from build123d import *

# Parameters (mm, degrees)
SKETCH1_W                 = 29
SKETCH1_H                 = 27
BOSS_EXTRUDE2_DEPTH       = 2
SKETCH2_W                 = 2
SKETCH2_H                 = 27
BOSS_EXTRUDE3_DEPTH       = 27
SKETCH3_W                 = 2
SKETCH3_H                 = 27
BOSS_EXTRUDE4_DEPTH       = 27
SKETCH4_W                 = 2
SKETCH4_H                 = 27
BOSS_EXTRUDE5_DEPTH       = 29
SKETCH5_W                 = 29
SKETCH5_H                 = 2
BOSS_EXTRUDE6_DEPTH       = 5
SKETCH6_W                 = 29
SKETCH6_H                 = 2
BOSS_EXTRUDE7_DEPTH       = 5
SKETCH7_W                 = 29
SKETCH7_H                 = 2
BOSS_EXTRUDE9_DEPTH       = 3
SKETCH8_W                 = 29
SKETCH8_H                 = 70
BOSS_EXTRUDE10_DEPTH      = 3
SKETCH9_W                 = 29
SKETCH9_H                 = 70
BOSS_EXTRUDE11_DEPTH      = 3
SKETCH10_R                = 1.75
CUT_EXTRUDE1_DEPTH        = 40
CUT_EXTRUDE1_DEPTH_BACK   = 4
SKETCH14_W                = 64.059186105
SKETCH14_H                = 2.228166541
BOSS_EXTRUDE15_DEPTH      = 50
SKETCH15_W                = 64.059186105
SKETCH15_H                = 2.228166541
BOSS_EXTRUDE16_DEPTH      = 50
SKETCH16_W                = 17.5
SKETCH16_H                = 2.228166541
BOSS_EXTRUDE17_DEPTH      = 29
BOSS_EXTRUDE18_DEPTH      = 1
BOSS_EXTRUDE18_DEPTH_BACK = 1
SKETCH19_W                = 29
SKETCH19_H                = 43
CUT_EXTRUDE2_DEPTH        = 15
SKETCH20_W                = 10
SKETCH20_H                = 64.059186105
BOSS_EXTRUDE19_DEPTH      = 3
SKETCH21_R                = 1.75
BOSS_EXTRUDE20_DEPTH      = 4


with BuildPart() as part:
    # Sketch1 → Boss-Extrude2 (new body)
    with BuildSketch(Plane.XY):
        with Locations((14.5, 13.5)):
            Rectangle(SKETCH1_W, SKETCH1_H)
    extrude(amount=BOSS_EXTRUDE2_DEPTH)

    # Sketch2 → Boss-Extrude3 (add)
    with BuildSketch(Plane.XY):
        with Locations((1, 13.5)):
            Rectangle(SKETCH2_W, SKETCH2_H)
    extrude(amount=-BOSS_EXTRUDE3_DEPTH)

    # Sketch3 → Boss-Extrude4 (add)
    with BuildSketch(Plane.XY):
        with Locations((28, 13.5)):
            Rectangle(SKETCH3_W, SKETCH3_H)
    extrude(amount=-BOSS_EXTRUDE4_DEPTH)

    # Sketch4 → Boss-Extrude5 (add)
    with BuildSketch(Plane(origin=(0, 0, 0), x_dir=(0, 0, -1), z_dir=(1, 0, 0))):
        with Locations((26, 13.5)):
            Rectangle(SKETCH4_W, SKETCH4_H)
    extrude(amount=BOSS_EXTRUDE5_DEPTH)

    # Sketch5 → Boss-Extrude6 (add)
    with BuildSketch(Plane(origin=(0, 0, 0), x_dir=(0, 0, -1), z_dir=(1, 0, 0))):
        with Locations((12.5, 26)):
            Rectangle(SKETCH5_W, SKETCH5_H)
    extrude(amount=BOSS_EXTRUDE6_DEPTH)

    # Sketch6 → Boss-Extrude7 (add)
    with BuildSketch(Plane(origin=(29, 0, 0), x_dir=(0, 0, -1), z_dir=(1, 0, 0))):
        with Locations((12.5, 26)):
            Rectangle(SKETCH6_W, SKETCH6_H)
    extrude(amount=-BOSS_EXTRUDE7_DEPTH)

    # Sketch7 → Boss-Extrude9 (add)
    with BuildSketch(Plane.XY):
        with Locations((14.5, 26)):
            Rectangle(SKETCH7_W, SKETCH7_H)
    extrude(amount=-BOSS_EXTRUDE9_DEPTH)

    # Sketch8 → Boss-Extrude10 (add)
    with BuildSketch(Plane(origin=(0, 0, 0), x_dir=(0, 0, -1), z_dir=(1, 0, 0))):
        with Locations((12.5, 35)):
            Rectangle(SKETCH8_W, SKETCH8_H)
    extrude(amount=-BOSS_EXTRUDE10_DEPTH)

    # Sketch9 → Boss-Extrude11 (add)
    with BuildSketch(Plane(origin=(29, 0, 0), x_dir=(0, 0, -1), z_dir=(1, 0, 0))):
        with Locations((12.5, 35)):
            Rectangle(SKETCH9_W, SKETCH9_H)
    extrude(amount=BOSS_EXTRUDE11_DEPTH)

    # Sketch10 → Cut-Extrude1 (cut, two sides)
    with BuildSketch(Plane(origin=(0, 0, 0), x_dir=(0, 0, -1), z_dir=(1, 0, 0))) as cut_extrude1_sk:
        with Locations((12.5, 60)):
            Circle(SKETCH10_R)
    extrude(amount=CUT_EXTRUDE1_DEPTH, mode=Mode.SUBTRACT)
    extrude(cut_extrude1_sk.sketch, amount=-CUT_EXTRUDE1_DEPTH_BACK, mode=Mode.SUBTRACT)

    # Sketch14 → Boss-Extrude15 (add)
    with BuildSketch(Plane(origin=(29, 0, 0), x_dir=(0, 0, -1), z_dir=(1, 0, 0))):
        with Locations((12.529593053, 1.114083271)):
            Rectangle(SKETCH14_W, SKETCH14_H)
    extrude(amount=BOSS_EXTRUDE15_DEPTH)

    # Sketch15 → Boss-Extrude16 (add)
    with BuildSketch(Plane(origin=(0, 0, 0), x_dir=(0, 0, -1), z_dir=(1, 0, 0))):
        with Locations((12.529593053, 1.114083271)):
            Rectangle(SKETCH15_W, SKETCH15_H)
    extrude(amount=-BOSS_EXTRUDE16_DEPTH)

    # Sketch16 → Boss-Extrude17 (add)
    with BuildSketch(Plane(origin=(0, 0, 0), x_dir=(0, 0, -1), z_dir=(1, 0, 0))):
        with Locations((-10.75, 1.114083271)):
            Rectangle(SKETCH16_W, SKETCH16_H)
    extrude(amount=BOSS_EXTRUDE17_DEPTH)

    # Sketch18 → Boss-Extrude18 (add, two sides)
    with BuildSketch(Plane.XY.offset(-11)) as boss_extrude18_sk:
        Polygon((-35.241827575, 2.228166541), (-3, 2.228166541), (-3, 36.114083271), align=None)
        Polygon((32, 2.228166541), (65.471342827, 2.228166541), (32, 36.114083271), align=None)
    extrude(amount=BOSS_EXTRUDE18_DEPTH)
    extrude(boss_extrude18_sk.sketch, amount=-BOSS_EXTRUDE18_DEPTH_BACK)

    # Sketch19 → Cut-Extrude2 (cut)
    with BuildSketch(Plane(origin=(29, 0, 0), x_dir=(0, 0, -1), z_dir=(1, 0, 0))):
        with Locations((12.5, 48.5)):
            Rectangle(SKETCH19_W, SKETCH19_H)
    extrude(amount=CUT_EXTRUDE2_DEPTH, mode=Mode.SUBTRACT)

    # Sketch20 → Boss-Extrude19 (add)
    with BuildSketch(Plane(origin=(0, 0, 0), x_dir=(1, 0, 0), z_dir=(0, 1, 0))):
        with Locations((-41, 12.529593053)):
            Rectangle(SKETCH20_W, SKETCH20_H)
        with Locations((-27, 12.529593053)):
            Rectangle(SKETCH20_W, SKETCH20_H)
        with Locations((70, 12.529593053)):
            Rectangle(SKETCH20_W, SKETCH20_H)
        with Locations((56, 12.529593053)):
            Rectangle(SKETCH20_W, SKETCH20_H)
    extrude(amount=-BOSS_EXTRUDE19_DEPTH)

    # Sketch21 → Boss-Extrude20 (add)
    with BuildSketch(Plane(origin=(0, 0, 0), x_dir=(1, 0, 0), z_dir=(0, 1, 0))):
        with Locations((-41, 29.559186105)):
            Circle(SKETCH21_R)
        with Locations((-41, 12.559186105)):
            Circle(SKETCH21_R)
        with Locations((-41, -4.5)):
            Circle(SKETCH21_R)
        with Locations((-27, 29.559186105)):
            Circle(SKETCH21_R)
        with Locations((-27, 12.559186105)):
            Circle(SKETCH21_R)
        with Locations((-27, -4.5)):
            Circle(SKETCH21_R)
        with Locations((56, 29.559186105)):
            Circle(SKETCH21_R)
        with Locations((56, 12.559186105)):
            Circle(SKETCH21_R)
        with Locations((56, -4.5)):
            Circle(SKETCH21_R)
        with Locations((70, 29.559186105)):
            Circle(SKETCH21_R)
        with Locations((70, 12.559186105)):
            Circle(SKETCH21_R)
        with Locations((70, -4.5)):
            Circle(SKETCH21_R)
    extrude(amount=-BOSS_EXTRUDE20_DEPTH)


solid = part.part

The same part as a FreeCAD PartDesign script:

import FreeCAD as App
import Part
import Sketcher
Q = App.Units.Quantity


def add_polygon(sketch, points):
    """Adds a closed chain of lines whose ends are joined by coincident constraints."""
    first, n = sketch.GeometryCount, len(points)
    for a, b in zip(points, points[1:] + points[:1]):
        sketch.addGeometry(Part.LineSegment(App.Vector(*a, 0), App.Vector(*b, 0)), False)
    for i in range(n):
        sketch.addConstraint(Sketcher.Constraint("Coincident", first + i, 2, first + (i + 1) % n, 1))

doc = App.newDocument("Part")
body = doc.addObject("PartDesign::Body", "Body")

sketch1 = body.newObject("Sketcher::SketchObject", "Sketch")
sketch1.AttachmentSupport = (doc.getObject("XY_Plane"), [""])
sketch1.MapMode = "FlatFace"
add_polygon(sketch1, [(0, 27), (0, 0), (29, 0), (29, 27)])
sketch1.addConstraint([
    Sketcher.Constraint("Vertical", 0),
    Sketcher.Constraint("Horizontal", 1),
    Sketcher.Constraint("Vertical", 2),
    Sketcher.Constraint("Horizontal", 3),
    Sketcher.Constraint("Coincident", 0, 2, -1, 1),
    Sketcher.Constraint("DistanceX", 1, 1, 1, 2, Q("29 mm")),
    Sketcher.Constraint("DistanceY", 0, 2, 0, 1, Q("27 mm")),
])
pad1 = body.newObject("PartDesign::Pad", "Pad")
pad1.Profile = sketch1
pad1.Length = 2

sketch2 = body.newObject("Sketcher::SketchObject", "Sketch001")
sketch2.AttachmentSupport = (doc.getObject("XY_Plane"), [""])
sketch2.MapMode = "FlatFace"
add_polygon(sketch2, [(0, 27), (0, 0), (2, 0), (2, 27)])
sketch2.addConstraint([
    Sketcher.Constraint("Vertical", 0),
    Sketcher.Constraint("Horizontal", 1),
    Sketcher.Constraint("Vertical", 2),
    Sketcher.Constraint("Horizontal", 3),
    Sketcher.Constraint("Coincident", 0, 2, -1, 1),
    Sketcher.Constraint("DistanceX", 1, 1, 1, 2, Q("2 mm")),
    Sketcher.Constraint("DistanceY", 0, 2, 0, 1, Q("27 mm")),
])
pad2 = body.newObject("PartDesign::Pad", "Pad001")
pad2.Profile = sketch2
pad2.Length = 27
pad2.Reversed = True

sketch3 = body.newObject("Sketcher::SketchObject", "Sketch002")
sketch3.AttachmentSupport = (doc.getObject("XY_Plane"), [""])
sketch3.MapMode = "FlatFace"
add_polygon(sketch3, [(27, 27), (27, 0), (29, 0), (29, 27)])
sketch3.addConstraint([
    Sketcher.Constraint("Vertical", 0),
    Sketcher.Constraint("Horizontal", 1),
    Sketcher.Constraint("Vertical", 2),
    Sketcher.Constraint("Horizontal", 3),
    Sketcher.Constraint("PointOnObject", 0, 2, -1),
    Sketcher.Constraint("DistanceX", 1, 1, 1, 2, Q("2 mm")),
    Sketcher.Constraint("DistanceY", 0, 2, 0, 1, Q("27 mm")),
    Sketcher.Constraint("DistanceX", -1, 1, 0, 2, Q("27 mm")),
])
pad3 = body.newObject("PartDesign::Pad", "Pad002")
pad3.Profile = sketch3
pad3.Length = 27
pad3.Reversed = True

sketch4 = body.newObject("Sketcher::SketchObject", "Sketch003")
sketch4.AttachmentSupport = (doc.getObject("YZ_Plane"), [""])
sketch4.MapMode = "FlatFace"
add_polygon(sketch4, [(27, -25), (0, -25), (0, -27), (27, -27)])
sketch4.addConstraint([
    Sketcher.Constraint("Horizontal", 0),
    Sketcher.Constraint("Vertical", 1),
    Sketcher.Constraint("Horizontal", 2),
    Sketcher.Constraint("Vertical", 3),
    Sketcher.Constraint("PointOnObject", 0, 2, -2),
    Sketcher.Constraint("DistanceX", 0, 2, 0, 1, Q("27 mm")),
    Sketcher.Constraint("DistanceY", 1, 2, 1, 1, Q("2 mm")),
    Sketcher.Constraint("DistanceY", 0, 2, -1, 1, Q("25 mm")),
])
pad4 = body.newObject("PartDesign::Pad", "Pad003")
pad4.Profile = sketch4
pad4.Length = 29

sketch5 = body.newObject("Sketcher::SketchObject", "Sketch004")
sketch5.AttachmentSupport = (doc.getObject("YZ_Plane"), [""])
sketch5.MapMode = "FlatFace"
add_polygon(sketch5, [(27, 2), (25, 2), (25, -27), (27, -27)])
sketch5.addConstraint([
    Sketcher.Constraint("Horizontal", 0),
    Sketcher.Constraint("Vertical", 1),
    Sketcher.Constraint("Horizontal", 2),
    Sketcher.Constraint("Vertical", 3),
    Sketcher.Constraint("DistanceX", 0, 2, 0, 1, Q("2 mm")),
    Sketcher.Constraint("DistanceY", 1, 2, 1, 1, Q("29 mm")),
    Sketcher.Constraint("DistanceX", -1, 1, 0, 2, Q("25 mm")),
    Sketcher.Constraint("DistanceY", -1, 1, 0, 2, Q("2 mm")),
])
pad5 = body.newObject("PartDesign::Pad", "Pad004")
pad5.Profile = sketch5
pad5.Length = 5

sketch6 = body.newObject("Sketcher::SketchObject", "Sketch005")
sketch6.AttachmentSupport = (doc.getObject("YZ_Plane"), [""])
sketch6.MapMode = "FlatFace"
sketch6.AttachmentOffset = App.Placement(App.Vector(0, 0, 29), App.Rotation())
add_polygon(sketch6, [(27, 2), (25, 2), (25, -27), (27, -27)])
sketch6.addConstraint([
    Sketcher.Constraint("Horizontal", 0),
    Sketcher.Constraint("Vertical", 1),
    Sketcher.Constraint("Horizontal", 2),
    Sketcher.Constraint("Vertical", 3),
    Sketcher.Constraint("DistanceX", 0, 2, 0, 1, Q("2 mm")),
    Sketcher.Constraint("DistanceY", 1, 2, 1, 1, Q("29 mm")),
    Sketcher.Constraint("DistanceX", -1, 1, 0, 2, Q("25 mm")),
    Sketcher.Constraint("DistanceY", -1, 1, 0, 2, Q("2 mm")),
])
pad6 = body.newObject("PartDesign::Pad", "Pad005")
pad6.Profile = sketch6
pad6.Length = 5
pad6.Reversed = True

sketch7 = body.newObject("Sketcher::SketchObject", "Sketch006")
sketch7.AttachmentSupport = (doc.getObject("XY_Plane"), [""])
sketch7.MapMode = "FlatFace"
add_polygon(sketch7, [(0, 27), (0, 25), (29, 25), (29, 27)])
sketch7.addConstraint([
    Sketcher.Constraint("Vertical", 0),
    Sketcher.Constraint("Horizontal", 1),
    Sketcher.Constraint("Vertical", 2),
    Sketcher.Constraint("Horizontal", 3),
    Sketcher.Constraint("PointOnObject", 0, 2, -2),
    Sketcher.Constraint("DistanceX", 1, 1, 1, 2, Q("29 mm")),
    Sketcher.Constraint("DistanceY", 0, 2, 0, 1, Q("2 mm")),
    Sketcher.Constraint("DistanceY", -1, 1, 0, 2, Q("25 mm")),
])
pad7 = body.newObject("PartDesign::Pad", "Pad006")
pad7.Profile = sketch7
pad7.Length = 3
pad7.Reversed = True

sketch8 = body.newObject("Sketcher::SketchObject", "Sketch007")
sketch8.AttachmentSupport = (doc.getObject("YZ_Plane"), [""])
sketch8.MapMode = "FlatFace"
add_polygon(sketch8, [(70, 2), (0, 2), (0, -27), (70, -27)])
sketch8.addConstraint([
    Sketcher.Constraint("Horizontal", 0),
    Sketcher.Constraint("Vertical", 1),
    Sketcher.Constraint("Horizontal", 2),
    Sketcher.Constraint("Vertical", 3),
    Sketcher.Constraint("PointOnObject", 0, 2, -2),
    Sketcher.Constraint("DistanceX", 0, 2, 0, 1, Q("70 mm")),
    Sketcher.Constraint("DistanceY", 1, 2, 1, 1, Q("29 mm")),
    Sketcher.Constraint("DistanceY", -1, 1, 0, 2, Q("2 mm")),
])
pad8 = body.newObject("PartDesign::Pad", "Pad007")
pad8.Profile = sketch8
pad8.Length = 3
pad8.Reversed = True

sketch9 = body.newObject("Sketcher::SketchObject", "Sketch008")
sketch9.AttachmentSupport = (doc.getObject("YZ_Plane"), [""])
sketch9.MapMode = "FlatFace"
sketch9.AttachmentOffset = App.Placement(App.Vector(0, 0, 29), App.Rotation())
add_polygon(sketch9, [(70, 2), (0, 2), (0, -27), (70, -27)])
sketch9.addConstraint([
    Sketcher.Constraint("Horizontal", 0),
    Sketcher.Constraint("Vertical", 1),
    Sketcher.Constraint("Horizontal", 2),
    Sketcher.Constraint("Vertical", 3),
    Sketcher.Constraint("PointOnObject", 0, 2, -2),
    Sketcher.Constraint("DistanceX", 0, 2, 0, 1, Q("70 mm")),
    Sketcher.Constraint("DistanceY", 1, 2, 1, 1, Q("29 mm")),
    Sketcher.Constraint("DistanceY", -1, 1, 0, 2, Q("2 mm")),
])
pad9 = body.newObject("PartDesign::Pad", "Pad008")
pad9.Profile = sketch9
pad9.Length = 3

sketch10 = body.newObject("Sketcher::SketchObject", "Sketch009")
sketch10.AttachmentSupport = (doc.getObject("YZ_Plane"), [""])
sketch10.MapMode = "FlatFace"
sketch10.addGeometry(Part.Circle(App.Vector(60, -12.5, 0), App.Vector(0, 0, 1), 1.8), False)
sketch10.addConstraint([
    Sketcher.Constraint("Diameter", 0, Q("3.5 mm")),
    Sketcher.Constraint("DistanceX", -1, 1, 0, 3, Q("60 mm")),
    Sketcher.Constraint("DistanceY", 0, 3, -1, 1, Q("12.5 mm")),
])
pocket1 = body.newObject("PartDesign::Pocket", "Pocket")
pocket1.Profile = sketch10
pocket1.Type = "ThroughAll"
pocket1.Midplane = True

sketch11 = body.newObject("Sketcher::SketchObject", "Sketch010")
sketch11.AttachmentSupport = (doc.getObject("YZ_Plane"), [""])
sketch11.MapMode = "FlatFace"
sketch11.AttachmentOffset = App.Placement(App.Vector(0, 0, 29), App.Rotation())
add_polygon(sketch11, [(2.2, 19.5), (0, 19.5), (0, -44.6), (2.2, -44.6)])
sketch11.addConstraint([
    Sketcher.Constraint("Horizontal", 0),
    Sketcher.Constraint("Vertical", 1),
    Sketcher.Constraint("Horizontal", 2),
    Sketcher.Constraint("Vertical", 3),
    Sketcher.Constraint("PointOnObject", 0, 2, -2),
    Sketcher.Constraint("DistanceY", -1, 1, 0, 2, Q("19.5 mm")),
    Sketcher.Constraint("DistanceX", 0, 2, 0, 1, Q("2.228167 mm")),
    Sketcher.Constraint("DistanceY", 1, 2, 1, 1, Q("64.059186 mm")),
])
pad10 = body.newObject("PartDesign::Pad", "Pad009")
pad10.Profile = sketch11
pad10.Length = 50

sketch12 = body.newObject("Sketcher::SketchObject", "Sketch011")
sketch12.AttachmentSupport = (doc.getObject("YZ_Plane"), [""])
sketch12.MapMode = "FlatFace"
add_polygon(sketch12, [(2.2, 19.5), (0, 19.5), (0, -44.6), (2.2, -44.6)])
sketch12.addConstraint([
    Sketcher.Constraint("Horizontal", 0),
    Sketcher.Constraint("Vertical", 1),
    Sketcher.Constraint("Horizontal", 2),
    Sketcher.Constraint("Vertical", 3),
    Sketcher.Constraint("PointOnObject", 0, 2, -2),
    Sketcher.Constraint("DistanceY", -1, 1, 0, 2, Q("19.5 mm")),
    Sketcher.Constraint("DistanceX", 0, 2, 0, 1, Q("2.228167 mm")),
    Sketcher.Constraint("DistanceY", 1, 2, 1, 1, Q("64.059186 mm")),
])
pad11 = body.newObject("PartDesign::Pad", "Pad010")
pad11.Profile = sketch12
pad11.Length = 50
pad11.Reversed = True

sketch13 = body.newObject("Sketcher::SketchObject", "Sketch012")
sketch13.AttachmentSupport = (doc.getObject("YZ_Plane"), [""])
sketch13.MapMode = "FlatFace"
add_polygon(sketch13, [(2.2, 19.5), (0, 19.5), (0, 2), (2.2, 2)])
sketch13.addConstraint([
    Sketcher.Constraint("Horizontal", 0),
    Sketcher.Constraint("Vertical", 1),
    Sketcher.Constraint("Horizontal", 2),
    Sketcher.Constraint("Vertical", 3),
    Sketcher.Constraint("PointOnObject", 0, 2, -2),
    Sketcher.Constraint("DistanceY", 1, 2, 1, 1, Q("17.5 mm")),
    Sketcher.Constraint("DistanceY", -1, 1, 1, 2, Q("2 mm")),
    Sketcher.Constraint("DistanceX", 0, 2, 0, 1, Q("2.228167 mm")),
])
pad12 = body.newObject("PartDesign::Pad", "Pad011")
pad12.Profile = sketch13
pad12.Length = 29

sketch14 = body.newObject("Sketcher::SketchObject", "Sketch013")
sketch14.AttachmentSupport = (doc.getObject("XY_Plane"), [""])
sketch14.MapMode = "FlatFace"
sketch14.AttachmentOffset = App.Placement(App.Vector(0, 0, -11), App.Rotation())
add_polygon(sketch14, [(-35, 2), (-3, 2), (-3, 36)])
add_polygon(sketch14, [(32, 2), (65, 2), (32, 36)])
sketch14.addConstraint([
    Sketcher.Constraint("Horizontal", 0),
    Sketcher.Constraint("Vertical", 1),
    Sketcher.Constraint("Horizontal", 3),
    Sketcher.Constraint("Vertical", 5),
    Sketcher.Constraint("Horizontal", 2, 2, 3, 2),
    Sketcher.Constraint("Horizontal", 1, 2, 4, 2),
    Sketcher.Constraint("DistanceX", 0, 2, -1, 1, Q("3 mm")),
    Sketcher.Constraint("DistanceX", -1, 1, 4, 2, Q("32 mm")),
    Sketcher.Constraint("DistanceX", 0, 1, 0, 2, Q("32.241828 mm")),
    Sketcher.Constraint("DistanceX", 3, 1, 3, 2, Q("33.471343 mm")),
    Sketcher.Constraint("DistanceY", 1, 1, 1, 2, Q("33.885917 mm")),
    Sketcher.Constraint("DistanceY", -1, 1, 0, 2, Q("2.228167 mm")),
])
pad13 = body.newObject("PartDesign::Pad", "Pad012")
pad13.Profile = sketch14
pad13.Type = "TwoLengths"
pad13.Length = 1
pad13.Length2 = 1

sketch15 = body.newObject("Sketcher::SketchObject", "Sketch014")
sketch15.AttachmentSupport = (doc.getObject("YZ_Plane"), [""])
sketch15.MapMode = "FlatFace"
sketch15.AttachmentOffset = App.Placement(App.Vector(0, 0, 29), App.Rotation())
add_polygon(sketch15, [(70, 2), (27, 2), (27, -27), (70, -27)])
sketch15.addConstraint([
    Sketcher.Constraint("Horizontal", 0),
    Sketcher.Constraint("Vertical", 1),
    Sketcher.Constraint("Horizontal", 2),
    Sketcher.Constraint("Vertical", 3),
    Sketcher.Constraint("DistanceX", 0, 2, 0, 1, Q("43 mm")),
    Sketcher.Constraint("DistanceY", 1, 2, 1, 1, Q("29 mm")),
    Sketcher.Constraint("DistanceX", -1, 1, 0, 2, Q("27 mm")),
    Sketcher.Constraint("DistanceY", -1, 1, 0, 2, Q("2 mm")),
])
pocket2 = body.newObject("PartDesign::Pocket", "Pocket001")
pocket2.Profile = sketch15
pocket2.Length = 15
pocket2.Reversed = True

sketch16 = body.newObject("Sketcher::SketchObject", "Sketch015")
sketch16.AttachmentSupport = (doc.getObject("XZ_Plane"), [""])
sketch16.MapMode = "FlatFace"
add_polygon(sketch16, [(-46, -45), (-46, 19), (-36, 19), (-36, -45)])
add_polygon(sketch16, [(-32, -45), (-32, 19), (-22, 19), (-22, -45)])
add_polygon(sketch16, [(65, -45), (65, 19), (75, 19), (75, -45)])
add_polygon(sketch16, [(51, -45), (51, 19), (61, 19), (61, -45)])
sketch16.addConstraint([
    Sketcher.Constraint("Vertical", 0),
    Sketcher.Constraint("Horizontal", 1),
    Sketcher.Constraint("Vertical", 2),
    Sketcher.Constraint("Horizontal", 3),
    Sketcher.Constraint("Vertical", 4),
    Sketcher.Constraint("Horizontal", 5),
    Sketcher.Constraint("Vertical", 6),
    Sketcher.Constraint("Horizontal", 7),
    Sketcher.Constraint("Vertical", 8),
    Sketcher.Constraint("Horizontal", 9),
    Sketcher.Constraint("Vertical", 10),
    Sketcher.Constraint("Horizontal", 11),
    Sketcher.Constraint("Vertical", 12),
    Sketcher.Constraint("Horizontal", 13),
    Sketcher.Constraint("Vertical", 14),
    Sketcher.Constraint("Horizontal", 15),
    Sketcher.Constraint("Horizontal", 1, 2, 4, 2),
    Sketcher.Constraint("Horizontal", 3, 2, 6, 2),
    Sketcher.Constraint("Horizontal", 5, 2, 8, 2),
    Sketcher.Constraint("Horizontal", 7, 2, 10, 2),
    Sketcher.Constraint("Horizontal", 9, 2, 12, 2),
    Sketcher.Constraint("Horizontal", 11, 2, 14, 2),
    Sketcher.Constraint("Equal", 3, 5),
    Sketcher.Constraint("Equal", 7, 9),
    Sketcher.Constraint("Equal", 11, 13),
    Sketcher.Constraint("DistanceX", 1, 1, 1, 2, Q("10 mm")),
    Sketcher.Constraint("DistanceX", 0, 2, -1, 1, Q("46 mm")),
    Sketcher.Constraint("DistanceX", 4, 2, -1, 1, Q("32 mm")),
    Sketcher.Constraint("DistanceX", -1, 1, 8, 2, Q("65 mm")),
    Sketcher.Constraint("DistanceX", -1, 1, 12, 2, Q("51 mm")),
    Sketcher.Constraint("DistanceY", -1, 1, 0, 2, Q("19.5 mm")),
    Sketcher.Constraint("DistanceY", 0, 1, 0, 2, Q("64.059186 mm")),
])
pad14 = body.newObject("PartDesign::Pad", "Pad013")
pad14.Profile = sketch16
pad14.Length = 3

sketch17 = body.newObject("Sketcher::SketchObject", "Sketch016")
sketch17.AttachmentSupport = (doc.getObject("XZ_Plane"), [""])
sketch17.MapMode = "FlatFace"
sketch17.addGeometry([
    Part.Circle(App.Vector(-41, -29.6, 0), App.Vector(0, 0, 1), 1.8),
    Part.Circle(App.Vector(-41, -12.6, 0), App.Vector(0, 0, 1), 1.8),
    Part.Circle(App.Vector(-41, 4.5, 0), App.Vector(0, 0, 1), 1.8),
    Part.Circle(App.Vector(-27, -29.6, 0), App.Vector(0, 0, 1), 1.8),
    Part.Circle(App.Vector(-27, -12.6, 0), App.Vector(0, 0, 1), 1.8),
    Part.Circle(App.Vector(-27, 4.5, 0), App.Vector(0, 0, 1), 1.8),
    Part.Circle(App.Vector(56, -29.6, 0), App.Vector(0, 0, 1), 1.8),
    Part.Circle(App.Vector(56, -12.6, 0), App.Vector(0, 0, 1), 1.8),
    Part.Circle(App.Vector(56, 4.5, 0), App.Vector(0, 0, 1), 1.8),
    Part.Circle(App.Vector(70, -29.6, 0), App.Vector(0, 0, 1), 1.8),
    Part.Circle(App.Vector(70, -12.6, 0), App.Vector(0, 0, 1), 1.8),
    Part.Circle(App.Vector(70, 4.5, 0), App.Vector(0, 0, 1), 1.8),
], False)
sketch17.addConstraint([
    Sketcher.Constraint("Equal", 0, 1),
    Sketcher.Constraint("Equal", 1, 2),
    Sketcher.Constraint("Equal", 2, 3),
    Sketcher.Constraint("Equal", 3, 4),
    Sketcher.Constraint("Equal", 4, 5),
    Sketcher.Constraint("Equal", 5, 6),
    Sketcher.Constraint("Equal", 6, 7),
    Sketcher.Constraint("Equal", 7, 8),
    Sketcher.Constraint("Equal", 8, 9),
    Sketcher.Constraint("Equal", 9, 10),
    Sketcher.Constraint("Equal", 10, 11),
    Sketcher.Constraint("Horizontal", 0, 3, 3, 3),
    Sketcher.Constraint("Horizontal", 1, 3, 4, 3),
    Sketcher.Constraint("Horizontal", 2, 3, 5, 3),
    Sketcher.Constraint("Horizontal", 3, 3, 6, 3),
    Sketcher.Constraint("Horizontal", 4, 3, 7, 3),
    Sketcher.Constraint("Horizontal", 5, 3, 8, 3),
    Sketcher.Constraint("Horizontal", 6, 3, 9, 3),
    Sketcher.Constraint("Horizontal", 7, 3, 10, 3),
    Sketcher.Constraint("Horizontal", 8, 3, 11, 3),
    Sketcher.Constraint("Vertical", 0, 3, 1, 3),
    Sketcher.Constraint("Vertical", 1, 3, 2, 3),
    Sketcher.Constraint("Vertical", 3, 3, 4, 3),
    Sketcher.Constraint("Vertical", 4, 3, 5, 3),
    Sketcher.Constraint("Vertical", 6, 3, 7, 3),
    Sketcher.Constraint("Vertical", 7, 3, 8, 3),
    Sketcher.Constraint("Vertical", 9, 3, 10, 3),
    Sketcher.Constraint("Vertical", 10, 3, 11, 3),
    Sketcher.Constraint("Diameter", 0, Q("3.5 mm")),
    Sketcher.Constraint("DistanceX", 0, 3, -1, 1, Q("41 mm")),
    Sketcher.Constraint("DistanceX", 3, 3, -1, 1, Q("27 mm")),
    Sketcher.Constraint("DistanceX", -1, 1, 6, 3, Q("56 mm")),
    Sketcher.Constraint("DistanceX", -1, 1, 9, 3, Q("70 mm")),
    Sketcher.Constraint("DistanceY", 0, 3, 1, 3, Q("17 mm")),
    Sketcher.Constraint("DistanceY", -1, 1, 2, 3, Q("4.5 mm")),
    Sketcher.Constraint("DistanceY", 0, 3, -1, 1, Q("29.559186 mm")),
])
pad15 = body.newObject("PartDesign::Pad", "Pad014")
pad15.Profile = sketch17
pad15.Length = 4

doc.recompute()
